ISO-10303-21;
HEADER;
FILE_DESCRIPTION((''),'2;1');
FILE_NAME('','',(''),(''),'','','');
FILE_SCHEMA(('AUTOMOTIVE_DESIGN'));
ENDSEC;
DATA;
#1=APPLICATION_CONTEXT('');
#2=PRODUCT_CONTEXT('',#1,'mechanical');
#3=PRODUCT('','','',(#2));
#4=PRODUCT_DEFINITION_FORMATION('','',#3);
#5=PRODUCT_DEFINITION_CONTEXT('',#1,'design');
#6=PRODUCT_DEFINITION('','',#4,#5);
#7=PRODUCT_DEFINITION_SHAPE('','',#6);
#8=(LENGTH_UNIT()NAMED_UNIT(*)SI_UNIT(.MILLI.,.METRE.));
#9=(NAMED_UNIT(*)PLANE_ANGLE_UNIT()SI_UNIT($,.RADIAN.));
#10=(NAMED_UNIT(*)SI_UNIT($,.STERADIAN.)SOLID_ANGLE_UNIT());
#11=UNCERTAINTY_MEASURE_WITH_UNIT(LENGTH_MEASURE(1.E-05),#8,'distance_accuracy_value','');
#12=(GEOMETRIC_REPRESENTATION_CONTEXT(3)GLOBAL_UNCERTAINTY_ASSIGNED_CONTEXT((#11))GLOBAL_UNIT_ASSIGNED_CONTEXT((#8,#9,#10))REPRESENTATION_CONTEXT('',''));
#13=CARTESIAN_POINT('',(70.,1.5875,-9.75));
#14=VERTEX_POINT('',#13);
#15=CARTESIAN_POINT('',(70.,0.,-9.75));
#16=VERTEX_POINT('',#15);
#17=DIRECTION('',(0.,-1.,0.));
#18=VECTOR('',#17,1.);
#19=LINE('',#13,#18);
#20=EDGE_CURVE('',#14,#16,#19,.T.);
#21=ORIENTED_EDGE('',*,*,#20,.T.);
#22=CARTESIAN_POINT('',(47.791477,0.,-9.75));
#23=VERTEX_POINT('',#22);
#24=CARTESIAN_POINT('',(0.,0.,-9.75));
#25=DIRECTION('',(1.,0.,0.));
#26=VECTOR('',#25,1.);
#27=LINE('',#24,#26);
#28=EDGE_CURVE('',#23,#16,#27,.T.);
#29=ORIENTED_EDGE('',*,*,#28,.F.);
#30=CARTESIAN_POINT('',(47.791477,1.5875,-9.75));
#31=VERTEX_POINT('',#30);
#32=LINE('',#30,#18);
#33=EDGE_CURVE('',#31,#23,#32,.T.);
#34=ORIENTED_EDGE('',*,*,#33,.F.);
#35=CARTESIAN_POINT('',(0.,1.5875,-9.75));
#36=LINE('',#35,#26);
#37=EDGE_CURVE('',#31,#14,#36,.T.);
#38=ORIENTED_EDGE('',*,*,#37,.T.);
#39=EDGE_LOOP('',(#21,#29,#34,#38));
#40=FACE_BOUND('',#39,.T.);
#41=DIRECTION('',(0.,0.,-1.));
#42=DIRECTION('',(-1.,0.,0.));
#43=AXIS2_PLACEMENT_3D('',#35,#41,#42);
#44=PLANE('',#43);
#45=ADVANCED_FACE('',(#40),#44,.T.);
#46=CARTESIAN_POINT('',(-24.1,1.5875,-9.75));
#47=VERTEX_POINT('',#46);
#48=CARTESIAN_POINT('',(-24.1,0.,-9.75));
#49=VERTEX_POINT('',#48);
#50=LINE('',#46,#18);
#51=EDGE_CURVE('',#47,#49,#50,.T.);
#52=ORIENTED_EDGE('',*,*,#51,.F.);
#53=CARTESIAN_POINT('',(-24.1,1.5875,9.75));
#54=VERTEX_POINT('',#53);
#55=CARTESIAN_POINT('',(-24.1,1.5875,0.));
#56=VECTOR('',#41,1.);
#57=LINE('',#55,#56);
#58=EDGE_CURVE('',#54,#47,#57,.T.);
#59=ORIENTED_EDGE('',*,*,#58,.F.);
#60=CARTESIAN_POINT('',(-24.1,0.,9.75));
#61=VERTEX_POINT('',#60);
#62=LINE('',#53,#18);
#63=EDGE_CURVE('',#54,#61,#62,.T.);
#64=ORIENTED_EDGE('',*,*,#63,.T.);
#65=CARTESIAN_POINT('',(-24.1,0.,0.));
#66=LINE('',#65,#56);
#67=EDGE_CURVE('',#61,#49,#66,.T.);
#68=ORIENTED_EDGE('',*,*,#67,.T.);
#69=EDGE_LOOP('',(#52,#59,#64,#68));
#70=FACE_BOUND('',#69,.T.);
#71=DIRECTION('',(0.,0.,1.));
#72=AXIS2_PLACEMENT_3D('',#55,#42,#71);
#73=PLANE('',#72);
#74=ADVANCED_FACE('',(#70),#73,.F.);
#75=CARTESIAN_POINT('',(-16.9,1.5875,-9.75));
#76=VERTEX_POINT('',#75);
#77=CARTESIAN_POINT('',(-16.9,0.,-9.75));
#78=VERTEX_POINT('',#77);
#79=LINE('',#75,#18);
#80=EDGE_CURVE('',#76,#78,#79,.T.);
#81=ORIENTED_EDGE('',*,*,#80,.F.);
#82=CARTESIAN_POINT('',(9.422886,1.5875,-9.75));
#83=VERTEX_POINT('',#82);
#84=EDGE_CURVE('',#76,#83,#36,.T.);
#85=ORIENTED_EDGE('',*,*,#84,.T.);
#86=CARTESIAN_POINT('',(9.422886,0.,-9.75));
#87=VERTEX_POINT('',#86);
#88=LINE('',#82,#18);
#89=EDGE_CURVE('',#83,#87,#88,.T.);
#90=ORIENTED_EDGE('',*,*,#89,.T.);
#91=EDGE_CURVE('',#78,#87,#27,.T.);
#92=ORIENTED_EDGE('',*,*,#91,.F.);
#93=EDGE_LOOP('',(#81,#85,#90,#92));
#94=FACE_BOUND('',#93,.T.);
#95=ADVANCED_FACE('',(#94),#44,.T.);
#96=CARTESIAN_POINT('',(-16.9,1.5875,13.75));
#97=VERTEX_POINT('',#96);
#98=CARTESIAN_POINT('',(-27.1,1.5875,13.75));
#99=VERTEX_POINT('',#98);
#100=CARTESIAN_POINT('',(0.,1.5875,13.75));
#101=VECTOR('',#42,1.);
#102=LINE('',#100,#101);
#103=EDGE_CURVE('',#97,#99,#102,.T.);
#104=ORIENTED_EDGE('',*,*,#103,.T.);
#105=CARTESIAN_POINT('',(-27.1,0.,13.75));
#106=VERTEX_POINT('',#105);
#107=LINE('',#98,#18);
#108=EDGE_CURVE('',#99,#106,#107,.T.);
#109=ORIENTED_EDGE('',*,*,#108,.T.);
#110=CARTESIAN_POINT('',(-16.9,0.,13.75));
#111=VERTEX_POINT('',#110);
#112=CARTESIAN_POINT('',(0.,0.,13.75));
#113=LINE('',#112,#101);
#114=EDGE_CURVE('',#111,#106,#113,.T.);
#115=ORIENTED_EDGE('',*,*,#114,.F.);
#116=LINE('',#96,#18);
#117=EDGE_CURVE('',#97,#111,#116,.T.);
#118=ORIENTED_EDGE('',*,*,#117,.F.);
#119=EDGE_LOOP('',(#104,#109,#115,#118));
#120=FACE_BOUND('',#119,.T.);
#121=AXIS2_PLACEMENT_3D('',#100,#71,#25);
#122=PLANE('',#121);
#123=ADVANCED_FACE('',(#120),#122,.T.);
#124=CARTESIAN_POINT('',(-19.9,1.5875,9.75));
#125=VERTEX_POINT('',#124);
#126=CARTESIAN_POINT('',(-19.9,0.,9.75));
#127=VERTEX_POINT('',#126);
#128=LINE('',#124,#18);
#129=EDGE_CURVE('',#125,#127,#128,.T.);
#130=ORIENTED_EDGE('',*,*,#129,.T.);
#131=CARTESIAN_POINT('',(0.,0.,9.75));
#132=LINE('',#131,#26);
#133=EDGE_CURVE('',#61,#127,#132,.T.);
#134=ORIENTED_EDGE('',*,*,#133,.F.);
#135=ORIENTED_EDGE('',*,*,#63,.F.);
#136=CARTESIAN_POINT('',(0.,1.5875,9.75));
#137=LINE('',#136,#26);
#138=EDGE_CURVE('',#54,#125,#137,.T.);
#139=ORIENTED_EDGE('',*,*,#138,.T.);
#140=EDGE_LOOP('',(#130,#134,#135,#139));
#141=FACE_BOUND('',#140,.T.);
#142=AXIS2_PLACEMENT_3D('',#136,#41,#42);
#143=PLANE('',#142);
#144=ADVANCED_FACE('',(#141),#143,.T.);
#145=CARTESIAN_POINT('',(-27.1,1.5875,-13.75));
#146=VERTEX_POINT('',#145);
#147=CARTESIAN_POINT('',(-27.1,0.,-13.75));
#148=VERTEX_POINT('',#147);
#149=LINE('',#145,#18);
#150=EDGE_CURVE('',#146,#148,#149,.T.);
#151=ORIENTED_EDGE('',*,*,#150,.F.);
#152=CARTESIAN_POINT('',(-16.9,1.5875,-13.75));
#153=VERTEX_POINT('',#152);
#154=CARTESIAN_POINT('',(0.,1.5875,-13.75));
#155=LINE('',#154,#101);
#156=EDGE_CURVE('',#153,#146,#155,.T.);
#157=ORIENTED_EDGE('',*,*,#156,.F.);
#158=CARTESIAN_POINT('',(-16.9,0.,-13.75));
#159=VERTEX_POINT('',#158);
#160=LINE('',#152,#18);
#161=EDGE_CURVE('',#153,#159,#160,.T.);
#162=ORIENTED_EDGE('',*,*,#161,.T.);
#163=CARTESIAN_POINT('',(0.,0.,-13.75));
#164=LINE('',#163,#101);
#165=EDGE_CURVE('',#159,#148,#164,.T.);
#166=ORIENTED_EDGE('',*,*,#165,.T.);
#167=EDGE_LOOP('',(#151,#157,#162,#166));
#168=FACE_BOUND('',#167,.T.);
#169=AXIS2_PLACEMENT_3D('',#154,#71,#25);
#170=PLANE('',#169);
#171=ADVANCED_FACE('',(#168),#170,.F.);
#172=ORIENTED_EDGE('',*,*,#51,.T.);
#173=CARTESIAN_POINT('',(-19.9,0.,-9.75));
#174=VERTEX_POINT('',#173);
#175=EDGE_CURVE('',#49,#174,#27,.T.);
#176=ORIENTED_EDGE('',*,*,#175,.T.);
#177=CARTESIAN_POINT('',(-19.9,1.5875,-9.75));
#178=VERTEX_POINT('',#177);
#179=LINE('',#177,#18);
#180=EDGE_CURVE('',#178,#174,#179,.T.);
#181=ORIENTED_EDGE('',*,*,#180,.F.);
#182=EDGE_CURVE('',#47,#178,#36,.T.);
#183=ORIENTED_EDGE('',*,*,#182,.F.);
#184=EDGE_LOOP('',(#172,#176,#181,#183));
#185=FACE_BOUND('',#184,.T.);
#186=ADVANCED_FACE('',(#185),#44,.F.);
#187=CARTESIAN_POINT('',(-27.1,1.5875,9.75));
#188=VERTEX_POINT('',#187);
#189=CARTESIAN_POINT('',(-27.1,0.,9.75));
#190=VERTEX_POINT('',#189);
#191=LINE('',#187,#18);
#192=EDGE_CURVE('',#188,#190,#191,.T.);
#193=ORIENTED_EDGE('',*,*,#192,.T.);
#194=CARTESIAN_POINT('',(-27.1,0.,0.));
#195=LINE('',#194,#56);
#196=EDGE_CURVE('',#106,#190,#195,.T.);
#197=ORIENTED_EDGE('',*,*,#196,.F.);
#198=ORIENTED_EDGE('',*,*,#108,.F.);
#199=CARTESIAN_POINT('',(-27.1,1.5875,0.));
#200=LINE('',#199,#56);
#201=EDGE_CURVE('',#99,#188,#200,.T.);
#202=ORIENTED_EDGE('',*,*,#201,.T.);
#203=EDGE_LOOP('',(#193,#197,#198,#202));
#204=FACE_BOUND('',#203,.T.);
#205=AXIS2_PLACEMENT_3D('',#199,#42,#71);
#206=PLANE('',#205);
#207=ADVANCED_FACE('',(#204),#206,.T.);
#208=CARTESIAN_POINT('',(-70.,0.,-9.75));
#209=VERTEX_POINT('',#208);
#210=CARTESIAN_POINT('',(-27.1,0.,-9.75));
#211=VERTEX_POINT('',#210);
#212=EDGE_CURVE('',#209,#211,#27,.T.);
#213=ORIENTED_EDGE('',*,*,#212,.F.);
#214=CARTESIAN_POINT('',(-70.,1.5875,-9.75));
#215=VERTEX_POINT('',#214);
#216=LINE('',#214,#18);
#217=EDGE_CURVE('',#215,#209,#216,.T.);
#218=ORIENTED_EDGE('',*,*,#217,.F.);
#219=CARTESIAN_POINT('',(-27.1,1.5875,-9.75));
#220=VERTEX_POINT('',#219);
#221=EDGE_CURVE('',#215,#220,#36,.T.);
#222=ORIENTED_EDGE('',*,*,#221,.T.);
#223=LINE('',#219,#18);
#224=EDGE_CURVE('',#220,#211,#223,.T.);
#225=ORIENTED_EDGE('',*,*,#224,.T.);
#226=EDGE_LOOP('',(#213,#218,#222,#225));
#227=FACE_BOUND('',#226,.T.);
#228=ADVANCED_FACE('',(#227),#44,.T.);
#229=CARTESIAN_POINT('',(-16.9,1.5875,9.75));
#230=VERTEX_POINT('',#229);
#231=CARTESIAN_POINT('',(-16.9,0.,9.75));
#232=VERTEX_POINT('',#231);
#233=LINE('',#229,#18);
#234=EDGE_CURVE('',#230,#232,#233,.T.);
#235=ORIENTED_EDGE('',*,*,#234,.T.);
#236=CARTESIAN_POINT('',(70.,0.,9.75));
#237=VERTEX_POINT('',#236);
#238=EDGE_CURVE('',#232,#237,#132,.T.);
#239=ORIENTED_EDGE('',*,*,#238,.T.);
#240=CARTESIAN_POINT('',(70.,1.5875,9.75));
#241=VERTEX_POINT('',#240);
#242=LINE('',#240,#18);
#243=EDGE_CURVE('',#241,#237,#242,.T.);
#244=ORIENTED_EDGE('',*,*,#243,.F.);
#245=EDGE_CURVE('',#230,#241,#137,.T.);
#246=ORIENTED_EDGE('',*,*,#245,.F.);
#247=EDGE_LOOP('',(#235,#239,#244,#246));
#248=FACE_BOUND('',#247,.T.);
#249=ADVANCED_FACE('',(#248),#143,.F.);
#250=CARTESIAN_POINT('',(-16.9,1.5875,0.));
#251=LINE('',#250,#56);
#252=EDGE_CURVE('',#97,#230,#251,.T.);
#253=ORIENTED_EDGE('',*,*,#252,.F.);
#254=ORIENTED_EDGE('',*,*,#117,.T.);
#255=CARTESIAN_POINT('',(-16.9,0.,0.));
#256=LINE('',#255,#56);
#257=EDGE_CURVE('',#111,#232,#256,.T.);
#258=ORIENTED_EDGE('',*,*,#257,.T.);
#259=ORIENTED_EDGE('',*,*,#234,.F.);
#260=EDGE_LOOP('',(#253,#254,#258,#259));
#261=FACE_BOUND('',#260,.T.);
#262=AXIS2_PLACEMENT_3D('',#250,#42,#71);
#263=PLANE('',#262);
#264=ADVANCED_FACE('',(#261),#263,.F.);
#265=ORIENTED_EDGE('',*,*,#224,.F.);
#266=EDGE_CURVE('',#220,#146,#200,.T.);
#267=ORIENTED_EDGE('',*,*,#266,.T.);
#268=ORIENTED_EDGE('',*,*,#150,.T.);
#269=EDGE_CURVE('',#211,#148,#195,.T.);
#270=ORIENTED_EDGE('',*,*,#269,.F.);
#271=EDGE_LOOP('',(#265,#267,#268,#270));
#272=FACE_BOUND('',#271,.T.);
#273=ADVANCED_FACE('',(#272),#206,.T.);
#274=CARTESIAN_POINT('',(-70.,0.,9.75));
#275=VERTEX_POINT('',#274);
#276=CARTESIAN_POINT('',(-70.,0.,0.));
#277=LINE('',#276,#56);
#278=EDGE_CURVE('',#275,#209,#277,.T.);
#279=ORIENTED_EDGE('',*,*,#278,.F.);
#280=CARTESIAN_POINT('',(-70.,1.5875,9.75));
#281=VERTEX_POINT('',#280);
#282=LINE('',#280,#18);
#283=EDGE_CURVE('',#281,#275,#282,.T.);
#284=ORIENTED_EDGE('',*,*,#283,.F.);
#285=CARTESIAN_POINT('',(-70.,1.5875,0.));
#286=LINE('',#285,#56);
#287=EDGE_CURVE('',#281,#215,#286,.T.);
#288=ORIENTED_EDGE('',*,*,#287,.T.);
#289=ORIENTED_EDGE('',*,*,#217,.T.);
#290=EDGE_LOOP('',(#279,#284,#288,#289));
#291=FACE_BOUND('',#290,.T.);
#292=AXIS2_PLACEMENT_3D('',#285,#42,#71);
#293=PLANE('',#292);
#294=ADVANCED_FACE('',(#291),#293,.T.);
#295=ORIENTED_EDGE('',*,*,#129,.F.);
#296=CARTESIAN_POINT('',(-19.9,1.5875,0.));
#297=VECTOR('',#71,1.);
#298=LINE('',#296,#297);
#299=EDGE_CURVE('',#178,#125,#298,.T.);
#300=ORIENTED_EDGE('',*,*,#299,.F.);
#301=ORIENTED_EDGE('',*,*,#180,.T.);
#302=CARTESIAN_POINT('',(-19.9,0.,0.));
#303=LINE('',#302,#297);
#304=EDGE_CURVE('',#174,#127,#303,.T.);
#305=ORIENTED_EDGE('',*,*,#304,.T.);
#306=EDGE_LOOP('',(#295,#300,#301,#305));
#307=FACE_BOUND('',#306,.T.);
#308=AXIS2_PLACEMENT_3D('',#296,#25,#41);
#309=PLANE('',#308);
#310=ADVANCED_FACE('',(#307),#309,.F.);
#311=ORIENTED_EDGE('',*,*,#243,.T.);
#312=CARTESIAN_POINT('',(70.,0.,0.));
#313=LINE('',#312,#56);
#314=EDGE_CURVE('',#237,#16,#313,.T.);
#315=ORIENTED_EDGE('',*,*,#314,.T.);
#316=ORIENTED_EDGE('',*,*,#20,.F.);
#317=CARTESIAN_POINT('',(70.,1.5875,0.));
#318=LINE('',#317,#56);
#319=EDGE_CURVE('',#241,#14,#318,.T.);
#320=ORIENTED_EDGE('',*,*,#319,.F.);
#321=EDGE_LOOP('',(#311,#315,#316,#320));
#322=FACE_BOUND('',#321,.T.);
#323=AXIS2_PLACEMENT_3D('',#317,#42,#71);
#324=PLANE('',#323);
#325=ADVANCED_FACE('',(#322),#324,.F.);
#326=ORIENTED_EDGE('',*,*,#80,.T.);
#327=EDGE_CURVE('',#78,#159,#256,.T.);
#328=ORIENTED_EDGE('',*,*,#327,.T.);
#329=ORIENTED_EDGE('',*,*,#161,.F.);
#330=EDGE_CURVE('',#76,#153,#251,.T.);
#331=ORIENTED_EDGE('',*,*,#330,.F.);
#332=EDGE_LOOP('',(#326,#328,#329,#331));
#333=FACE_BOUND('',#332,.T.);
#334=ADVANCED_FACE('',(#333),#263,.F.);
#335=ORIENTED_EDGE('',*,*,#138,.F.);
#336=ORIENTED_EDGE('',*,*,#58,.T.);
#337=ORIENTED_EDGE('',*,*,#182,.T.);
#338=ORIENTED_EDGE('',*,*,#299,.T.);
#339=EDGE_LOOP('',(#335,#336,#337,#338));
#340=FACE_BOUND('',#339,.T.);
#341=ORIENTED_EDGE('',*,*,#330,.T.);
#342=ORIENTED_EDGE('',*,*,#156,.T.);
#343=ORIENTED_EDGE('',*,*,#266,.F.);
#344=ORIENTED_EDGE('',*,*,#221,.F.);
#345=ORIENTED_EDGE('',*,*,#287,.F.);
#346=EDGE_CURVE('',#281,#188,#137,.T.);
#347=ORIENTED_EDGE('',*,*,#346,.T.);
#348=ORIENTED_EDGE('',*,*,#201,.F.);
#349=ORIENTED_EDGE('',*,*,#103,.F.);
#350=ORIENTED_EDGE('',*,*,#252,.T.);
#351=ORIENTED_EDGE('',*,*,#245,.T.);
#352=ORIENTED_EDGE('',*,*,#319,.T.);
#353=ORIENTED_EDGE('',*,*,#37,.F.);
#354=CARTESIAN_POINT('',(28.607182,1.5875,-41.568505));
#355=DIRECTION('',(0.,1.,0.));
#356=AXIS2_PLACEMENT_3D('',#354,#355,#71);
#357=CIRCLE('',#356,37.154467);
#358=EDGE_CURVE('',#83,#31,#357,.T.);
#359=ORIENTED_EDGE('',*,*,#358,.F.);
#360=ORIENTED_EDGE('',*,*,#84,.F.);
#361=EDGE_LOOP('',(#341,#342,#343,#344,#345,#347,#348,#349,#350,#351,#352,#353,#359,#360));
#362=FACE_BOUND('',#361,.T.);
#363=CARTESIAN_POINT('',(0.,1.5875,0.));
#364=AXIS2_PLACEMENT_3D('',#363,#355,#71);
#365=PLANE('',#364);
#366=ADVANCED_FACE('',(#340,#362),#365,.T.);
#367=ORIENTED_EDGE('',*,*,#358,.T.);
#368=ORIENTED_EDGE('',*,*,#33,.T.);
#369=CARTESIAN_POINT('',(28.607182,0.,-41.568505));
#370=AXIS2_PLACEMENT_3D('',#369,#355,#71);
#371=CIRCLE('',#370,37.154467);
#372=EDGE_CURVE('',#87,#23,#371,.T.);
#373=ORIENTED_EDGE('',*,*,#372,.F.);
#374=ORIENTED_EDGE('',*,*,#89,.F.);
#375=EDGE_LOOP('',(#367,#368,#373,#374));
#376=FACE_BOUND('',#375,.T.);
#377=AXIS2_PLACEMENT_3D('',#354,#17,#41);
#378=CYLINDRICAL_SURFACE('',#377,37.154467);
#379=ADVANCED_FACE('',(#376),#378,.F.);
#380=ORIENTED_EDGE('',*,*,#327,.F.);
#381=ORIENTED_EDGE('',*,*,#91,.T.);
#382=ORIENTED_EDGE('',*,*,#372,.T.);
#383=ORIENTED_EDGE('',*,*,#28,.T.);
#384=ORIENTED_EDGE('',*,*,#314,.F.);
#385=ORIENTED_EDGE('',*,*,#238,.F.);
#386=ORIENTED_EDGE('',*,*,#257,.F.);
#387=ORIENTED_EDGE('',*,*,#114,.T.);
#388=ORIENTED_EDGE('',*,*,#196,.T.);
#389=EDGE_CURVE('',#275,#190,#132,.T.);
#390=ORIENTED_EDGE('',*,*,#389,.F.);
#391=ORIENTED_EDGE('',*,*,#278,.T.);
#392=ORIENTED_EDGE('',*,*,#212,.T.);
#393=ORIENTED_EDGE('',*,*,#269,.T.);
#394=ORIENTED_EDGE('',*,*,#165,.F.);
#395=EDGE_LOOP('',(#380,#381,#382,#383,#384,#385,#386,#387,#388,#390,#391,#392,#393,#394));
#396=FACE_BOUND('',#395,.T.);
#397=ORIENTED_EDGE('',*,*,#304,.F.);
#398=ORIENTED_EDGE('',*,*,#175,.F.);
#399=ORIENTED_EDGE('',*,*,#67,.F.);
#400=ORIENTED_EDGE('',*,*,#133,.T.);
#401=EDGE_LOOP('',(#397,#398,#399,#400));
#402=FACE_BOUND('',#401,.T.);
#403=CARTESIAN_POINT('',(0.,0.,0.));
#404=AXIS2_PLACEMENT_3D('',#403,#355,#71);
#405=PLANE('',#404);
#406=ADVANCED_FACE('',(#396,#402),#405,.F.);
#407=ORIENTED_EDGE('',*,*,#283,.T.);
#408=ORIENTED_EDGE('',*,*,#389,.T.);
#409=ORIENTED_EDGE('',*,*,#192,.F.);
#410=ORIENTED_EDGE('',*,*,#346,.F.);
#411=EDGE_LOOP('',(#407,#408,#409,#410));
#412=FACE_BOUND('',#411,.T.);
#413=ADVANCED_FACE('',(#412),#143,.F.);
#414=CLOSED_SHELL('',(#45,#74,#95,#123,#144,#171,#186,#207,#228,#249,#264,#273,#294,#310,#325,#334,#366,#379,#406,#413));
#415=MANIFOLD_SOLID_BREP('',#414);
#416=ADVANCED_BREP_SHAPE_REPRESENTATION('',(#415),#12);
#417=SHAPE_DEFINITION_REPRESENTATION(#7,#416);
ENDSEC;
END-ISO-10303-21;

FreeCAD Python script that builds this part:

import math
import FreeCAD as App
import Part
import Sketcher
Q = App.Units.Quantity


def add_polygon(sketch, points):
    """Adds a closed chain of lines whose ends are joined by coincident constraints."""
    first, n = sketch.GeometryCount, len(points)
    for a, b in zip(points, points[1:] + points[:1]):
        sketch.addGeometry(Part.LineSegment(App.Vector(*a, 0), App.Vector(*b, 0)), False)
    for i in range(n):
        sketch.addConstraint(Sketcher.Constraint("Coincident", first + i, 2, first + (i + 1) % n, 1))

doc = App.newDocument("Part")
body = doc.addObject("PartDesign::Body", "Body")

sketch1 = body.newObject("Sketcher::SketchObject", "Sketch")
sketch1.AttachmentSupport = (doc.getObject("XZ_Plane"), [""])
sketch1.MapMode = "FlatFace"
sketch1.addGeometry(Part.LineSegment(App.Vector(-27.1, -9.8, 0), App.Vector(-70, -9.8, 0)), False)
sketch1.addGeometry(Part.LineSegment(App.Vector(-70, -9.8, 0), App.Vector(-70, 9.8, 0)), False)
sketch1.addGeometry(Part.LineSegment(App.Vector(-70, 9.8, 0), App.Vector(-27.1, 9.8, 0)), False)
sketch1.addGeometry(Part.LineSegment(App.Vector(-27.1, 9.8, 0), App.Vector(-27.1, 13.8, 0)), False)
sketch1.addGeometry(Part.LineSegment(App.Vector(-27.1, 13.8, 0), App.Vector(-16.9, 13.8, 0)), False)
sketch1.addGeometry(Part.LineSegment(App.Vector(-16.9, 13.8, 0), App.Vector(-16.9, 9.8, 0)), False)
sketch1.addGeometry(Part.LineSegment(App.Vector(-16.9, 9.8, 0), App.Vector(70, 9.8, 0)), False)
sketch1.addGeometry(Part.LineSegment(App.Vector(70, 9.8, 0), App.Vector(70, -9.8, 0)), False)
sketch1.addGeometry(Part.LineSegment(App.Vector(70, -9.8, 0), App.Vector(47.8, -9.8, 0)), False)
sketch1.addGeometry(Part.ArcOfCircle(Part.Circle(App.Vector(28.6, -41.6, 0), App.Vector(0, 0, 1), 37.2), math.radians(59), math.radians(121)), False)
sketch1.addGeometry(Part.LineSegment(App.Vector(9.4, -9.8, 0), App.Vector(-16.9, -9.8, 0)), False)
sketch1.addGeometry(Part.LineSegment(App.Vector(-16.9, -9.8, 0), App.Vector(-16.9, -13.8, 0)), False)
sketch1.addGeometry(Part.LineSegment(App.Vector(-16.9, -13.8, 0), App.Vector(-27.1, -13.8, 0)), False)
sketch1.addGeometry(Part.LineSegment(App.Vector(-27.1, -13.8, 0), App.Vector(-27.1, -9.8, 0)), False)
add_polygon(sketch1, [(-19.9, 9.8), (-24.1, 9.8), (-24.1, -9.8), (-19.9, -9.8)])
sketch1.addConstraint([
    Sketcher.Constraint("Coincident", 0, 2, 1, 1),
    Sketcher.Constraint("Coincident", 1, 2, 2, 1),
    Sketcher.Constraint("Coincident", 2, 2, 3, 1),
    Sketcher.Constraint("Coincident", 3, 2, 4, 1),
    Sketcher.Constraint("Coincident", 4, 2, 5, 1),
    Sketcher.Constraint("Coincident", 5, 2, 6, 1),
    Sketcher.Constraint("Coincident", 6, 2, 7, 1),
    Sketcher.Constraint("Coincident", 7, 2, 8, 1),
    Sketcher.Constraint("Coincident", 8, 2, 9, 1),
    Sketcher.Constraint("Coincident", 9, 2, 10, 1),
    Sketcher.Constraint("Coincident", 10, 2, 11, 1),
    Sketcher.Constraint("Coincident", 11, 2, 12, 1),
    Sketcher.Constraint("Coincident", 12, 2, 13, 1),
    Sketcher.Constraint("Coincident", 13, 2, 0, 1),
    Sketcher.Constraint("Horizontal", 0),
    Sketcher.Constraint("Vertical", 1),
    Sketcher.Constraint("Horizontal", 2),
    Sketcher.Constraint("Vertical", 3),
    Sketcher.Constraint("Horizontal", 4),
    Sketcher.Constraint("Vertical", 5),
    Sketcher.Constraint("Horizontal", 6),
    Sketcher.Constraint("Vertical", 7),
    Sketcher.Constraint("Horizontal", 8),
    Sketcher.Constraint("Horizontal", 10),
    Sketcher.Constraint("Vertical", 11),
    Sketcher.Constraint("Horizontal", 12),
    Sketcher.Constraint("Vertical", 13),
    Sketcher.Constraint("Horizontal", 14),
    Sketcher.Constraint("Vertical", 15),
    Sketcher.Constraint("Horizontal", 16),
    Sketcher.Constraint("Vertical", 17),
    Sketcher.Constraint("Symmetric", 0, 2, 6, 2, -1, 1),
    Sketcher.Constraint("Symmetric", 5, 2, 10, 2, -1),
    Sketcher.Constraint("Symmetric", 3, 2, 12, 2, -1),
    Sketcher.Constraint("Horizontal", 2, 2, 5, 2),
    Sketcher.Constraint("Horizontal", 0, 2, 7, 2),
    Sketcher.Constraint("Horizontal", 6, 2, 14, 2),
    Sketcher.Constraint("Horizontal", 13, 2, 15, 2),
    Sketcher.Constraint("DistanceY", 3, 1, 3, 2, Q("4 mm")),
    Sketcher.Constraint("DistanceX", 0, 2, 0, 1, Q("42.9 mm")),
    Sketcher.Constraint("DistanceX", 4, 1, 4, 2, Q("10.2 mm")),
    Sketcher.Constraint("DistanceX", 6, 1, 6, 2, Q("86.9 mm")),
    Sketcher.Constraint("DistanceX", 14, 2, 14, 1, Q("4.2 mm")),
    Sketcher.Constraint("DistanceY", 1, 1, 1, 2, Q("19.5 mm")),
    Sketcher.Constraint("DistanceX", 2, 2, 14, 2, Q("3 mm")),
    Sketcher.Constraint("Radius", 9, Q("37.154467 mm")),
    Sketcher.Constraint("DistanceX", 8, 2, 8, 1, Q("22.208523 mm")),
    Sketcher.Constraint("DistanceX", 10, 2, 10, 1, Q("26.322886 mm")),
])
pad1 = body.newObject("PartDesign::Pad", "Pad")
pad1.Profile = sketch1
pad1.Length = 1.5875
pad1.Reversed = True

doc.recompute()
